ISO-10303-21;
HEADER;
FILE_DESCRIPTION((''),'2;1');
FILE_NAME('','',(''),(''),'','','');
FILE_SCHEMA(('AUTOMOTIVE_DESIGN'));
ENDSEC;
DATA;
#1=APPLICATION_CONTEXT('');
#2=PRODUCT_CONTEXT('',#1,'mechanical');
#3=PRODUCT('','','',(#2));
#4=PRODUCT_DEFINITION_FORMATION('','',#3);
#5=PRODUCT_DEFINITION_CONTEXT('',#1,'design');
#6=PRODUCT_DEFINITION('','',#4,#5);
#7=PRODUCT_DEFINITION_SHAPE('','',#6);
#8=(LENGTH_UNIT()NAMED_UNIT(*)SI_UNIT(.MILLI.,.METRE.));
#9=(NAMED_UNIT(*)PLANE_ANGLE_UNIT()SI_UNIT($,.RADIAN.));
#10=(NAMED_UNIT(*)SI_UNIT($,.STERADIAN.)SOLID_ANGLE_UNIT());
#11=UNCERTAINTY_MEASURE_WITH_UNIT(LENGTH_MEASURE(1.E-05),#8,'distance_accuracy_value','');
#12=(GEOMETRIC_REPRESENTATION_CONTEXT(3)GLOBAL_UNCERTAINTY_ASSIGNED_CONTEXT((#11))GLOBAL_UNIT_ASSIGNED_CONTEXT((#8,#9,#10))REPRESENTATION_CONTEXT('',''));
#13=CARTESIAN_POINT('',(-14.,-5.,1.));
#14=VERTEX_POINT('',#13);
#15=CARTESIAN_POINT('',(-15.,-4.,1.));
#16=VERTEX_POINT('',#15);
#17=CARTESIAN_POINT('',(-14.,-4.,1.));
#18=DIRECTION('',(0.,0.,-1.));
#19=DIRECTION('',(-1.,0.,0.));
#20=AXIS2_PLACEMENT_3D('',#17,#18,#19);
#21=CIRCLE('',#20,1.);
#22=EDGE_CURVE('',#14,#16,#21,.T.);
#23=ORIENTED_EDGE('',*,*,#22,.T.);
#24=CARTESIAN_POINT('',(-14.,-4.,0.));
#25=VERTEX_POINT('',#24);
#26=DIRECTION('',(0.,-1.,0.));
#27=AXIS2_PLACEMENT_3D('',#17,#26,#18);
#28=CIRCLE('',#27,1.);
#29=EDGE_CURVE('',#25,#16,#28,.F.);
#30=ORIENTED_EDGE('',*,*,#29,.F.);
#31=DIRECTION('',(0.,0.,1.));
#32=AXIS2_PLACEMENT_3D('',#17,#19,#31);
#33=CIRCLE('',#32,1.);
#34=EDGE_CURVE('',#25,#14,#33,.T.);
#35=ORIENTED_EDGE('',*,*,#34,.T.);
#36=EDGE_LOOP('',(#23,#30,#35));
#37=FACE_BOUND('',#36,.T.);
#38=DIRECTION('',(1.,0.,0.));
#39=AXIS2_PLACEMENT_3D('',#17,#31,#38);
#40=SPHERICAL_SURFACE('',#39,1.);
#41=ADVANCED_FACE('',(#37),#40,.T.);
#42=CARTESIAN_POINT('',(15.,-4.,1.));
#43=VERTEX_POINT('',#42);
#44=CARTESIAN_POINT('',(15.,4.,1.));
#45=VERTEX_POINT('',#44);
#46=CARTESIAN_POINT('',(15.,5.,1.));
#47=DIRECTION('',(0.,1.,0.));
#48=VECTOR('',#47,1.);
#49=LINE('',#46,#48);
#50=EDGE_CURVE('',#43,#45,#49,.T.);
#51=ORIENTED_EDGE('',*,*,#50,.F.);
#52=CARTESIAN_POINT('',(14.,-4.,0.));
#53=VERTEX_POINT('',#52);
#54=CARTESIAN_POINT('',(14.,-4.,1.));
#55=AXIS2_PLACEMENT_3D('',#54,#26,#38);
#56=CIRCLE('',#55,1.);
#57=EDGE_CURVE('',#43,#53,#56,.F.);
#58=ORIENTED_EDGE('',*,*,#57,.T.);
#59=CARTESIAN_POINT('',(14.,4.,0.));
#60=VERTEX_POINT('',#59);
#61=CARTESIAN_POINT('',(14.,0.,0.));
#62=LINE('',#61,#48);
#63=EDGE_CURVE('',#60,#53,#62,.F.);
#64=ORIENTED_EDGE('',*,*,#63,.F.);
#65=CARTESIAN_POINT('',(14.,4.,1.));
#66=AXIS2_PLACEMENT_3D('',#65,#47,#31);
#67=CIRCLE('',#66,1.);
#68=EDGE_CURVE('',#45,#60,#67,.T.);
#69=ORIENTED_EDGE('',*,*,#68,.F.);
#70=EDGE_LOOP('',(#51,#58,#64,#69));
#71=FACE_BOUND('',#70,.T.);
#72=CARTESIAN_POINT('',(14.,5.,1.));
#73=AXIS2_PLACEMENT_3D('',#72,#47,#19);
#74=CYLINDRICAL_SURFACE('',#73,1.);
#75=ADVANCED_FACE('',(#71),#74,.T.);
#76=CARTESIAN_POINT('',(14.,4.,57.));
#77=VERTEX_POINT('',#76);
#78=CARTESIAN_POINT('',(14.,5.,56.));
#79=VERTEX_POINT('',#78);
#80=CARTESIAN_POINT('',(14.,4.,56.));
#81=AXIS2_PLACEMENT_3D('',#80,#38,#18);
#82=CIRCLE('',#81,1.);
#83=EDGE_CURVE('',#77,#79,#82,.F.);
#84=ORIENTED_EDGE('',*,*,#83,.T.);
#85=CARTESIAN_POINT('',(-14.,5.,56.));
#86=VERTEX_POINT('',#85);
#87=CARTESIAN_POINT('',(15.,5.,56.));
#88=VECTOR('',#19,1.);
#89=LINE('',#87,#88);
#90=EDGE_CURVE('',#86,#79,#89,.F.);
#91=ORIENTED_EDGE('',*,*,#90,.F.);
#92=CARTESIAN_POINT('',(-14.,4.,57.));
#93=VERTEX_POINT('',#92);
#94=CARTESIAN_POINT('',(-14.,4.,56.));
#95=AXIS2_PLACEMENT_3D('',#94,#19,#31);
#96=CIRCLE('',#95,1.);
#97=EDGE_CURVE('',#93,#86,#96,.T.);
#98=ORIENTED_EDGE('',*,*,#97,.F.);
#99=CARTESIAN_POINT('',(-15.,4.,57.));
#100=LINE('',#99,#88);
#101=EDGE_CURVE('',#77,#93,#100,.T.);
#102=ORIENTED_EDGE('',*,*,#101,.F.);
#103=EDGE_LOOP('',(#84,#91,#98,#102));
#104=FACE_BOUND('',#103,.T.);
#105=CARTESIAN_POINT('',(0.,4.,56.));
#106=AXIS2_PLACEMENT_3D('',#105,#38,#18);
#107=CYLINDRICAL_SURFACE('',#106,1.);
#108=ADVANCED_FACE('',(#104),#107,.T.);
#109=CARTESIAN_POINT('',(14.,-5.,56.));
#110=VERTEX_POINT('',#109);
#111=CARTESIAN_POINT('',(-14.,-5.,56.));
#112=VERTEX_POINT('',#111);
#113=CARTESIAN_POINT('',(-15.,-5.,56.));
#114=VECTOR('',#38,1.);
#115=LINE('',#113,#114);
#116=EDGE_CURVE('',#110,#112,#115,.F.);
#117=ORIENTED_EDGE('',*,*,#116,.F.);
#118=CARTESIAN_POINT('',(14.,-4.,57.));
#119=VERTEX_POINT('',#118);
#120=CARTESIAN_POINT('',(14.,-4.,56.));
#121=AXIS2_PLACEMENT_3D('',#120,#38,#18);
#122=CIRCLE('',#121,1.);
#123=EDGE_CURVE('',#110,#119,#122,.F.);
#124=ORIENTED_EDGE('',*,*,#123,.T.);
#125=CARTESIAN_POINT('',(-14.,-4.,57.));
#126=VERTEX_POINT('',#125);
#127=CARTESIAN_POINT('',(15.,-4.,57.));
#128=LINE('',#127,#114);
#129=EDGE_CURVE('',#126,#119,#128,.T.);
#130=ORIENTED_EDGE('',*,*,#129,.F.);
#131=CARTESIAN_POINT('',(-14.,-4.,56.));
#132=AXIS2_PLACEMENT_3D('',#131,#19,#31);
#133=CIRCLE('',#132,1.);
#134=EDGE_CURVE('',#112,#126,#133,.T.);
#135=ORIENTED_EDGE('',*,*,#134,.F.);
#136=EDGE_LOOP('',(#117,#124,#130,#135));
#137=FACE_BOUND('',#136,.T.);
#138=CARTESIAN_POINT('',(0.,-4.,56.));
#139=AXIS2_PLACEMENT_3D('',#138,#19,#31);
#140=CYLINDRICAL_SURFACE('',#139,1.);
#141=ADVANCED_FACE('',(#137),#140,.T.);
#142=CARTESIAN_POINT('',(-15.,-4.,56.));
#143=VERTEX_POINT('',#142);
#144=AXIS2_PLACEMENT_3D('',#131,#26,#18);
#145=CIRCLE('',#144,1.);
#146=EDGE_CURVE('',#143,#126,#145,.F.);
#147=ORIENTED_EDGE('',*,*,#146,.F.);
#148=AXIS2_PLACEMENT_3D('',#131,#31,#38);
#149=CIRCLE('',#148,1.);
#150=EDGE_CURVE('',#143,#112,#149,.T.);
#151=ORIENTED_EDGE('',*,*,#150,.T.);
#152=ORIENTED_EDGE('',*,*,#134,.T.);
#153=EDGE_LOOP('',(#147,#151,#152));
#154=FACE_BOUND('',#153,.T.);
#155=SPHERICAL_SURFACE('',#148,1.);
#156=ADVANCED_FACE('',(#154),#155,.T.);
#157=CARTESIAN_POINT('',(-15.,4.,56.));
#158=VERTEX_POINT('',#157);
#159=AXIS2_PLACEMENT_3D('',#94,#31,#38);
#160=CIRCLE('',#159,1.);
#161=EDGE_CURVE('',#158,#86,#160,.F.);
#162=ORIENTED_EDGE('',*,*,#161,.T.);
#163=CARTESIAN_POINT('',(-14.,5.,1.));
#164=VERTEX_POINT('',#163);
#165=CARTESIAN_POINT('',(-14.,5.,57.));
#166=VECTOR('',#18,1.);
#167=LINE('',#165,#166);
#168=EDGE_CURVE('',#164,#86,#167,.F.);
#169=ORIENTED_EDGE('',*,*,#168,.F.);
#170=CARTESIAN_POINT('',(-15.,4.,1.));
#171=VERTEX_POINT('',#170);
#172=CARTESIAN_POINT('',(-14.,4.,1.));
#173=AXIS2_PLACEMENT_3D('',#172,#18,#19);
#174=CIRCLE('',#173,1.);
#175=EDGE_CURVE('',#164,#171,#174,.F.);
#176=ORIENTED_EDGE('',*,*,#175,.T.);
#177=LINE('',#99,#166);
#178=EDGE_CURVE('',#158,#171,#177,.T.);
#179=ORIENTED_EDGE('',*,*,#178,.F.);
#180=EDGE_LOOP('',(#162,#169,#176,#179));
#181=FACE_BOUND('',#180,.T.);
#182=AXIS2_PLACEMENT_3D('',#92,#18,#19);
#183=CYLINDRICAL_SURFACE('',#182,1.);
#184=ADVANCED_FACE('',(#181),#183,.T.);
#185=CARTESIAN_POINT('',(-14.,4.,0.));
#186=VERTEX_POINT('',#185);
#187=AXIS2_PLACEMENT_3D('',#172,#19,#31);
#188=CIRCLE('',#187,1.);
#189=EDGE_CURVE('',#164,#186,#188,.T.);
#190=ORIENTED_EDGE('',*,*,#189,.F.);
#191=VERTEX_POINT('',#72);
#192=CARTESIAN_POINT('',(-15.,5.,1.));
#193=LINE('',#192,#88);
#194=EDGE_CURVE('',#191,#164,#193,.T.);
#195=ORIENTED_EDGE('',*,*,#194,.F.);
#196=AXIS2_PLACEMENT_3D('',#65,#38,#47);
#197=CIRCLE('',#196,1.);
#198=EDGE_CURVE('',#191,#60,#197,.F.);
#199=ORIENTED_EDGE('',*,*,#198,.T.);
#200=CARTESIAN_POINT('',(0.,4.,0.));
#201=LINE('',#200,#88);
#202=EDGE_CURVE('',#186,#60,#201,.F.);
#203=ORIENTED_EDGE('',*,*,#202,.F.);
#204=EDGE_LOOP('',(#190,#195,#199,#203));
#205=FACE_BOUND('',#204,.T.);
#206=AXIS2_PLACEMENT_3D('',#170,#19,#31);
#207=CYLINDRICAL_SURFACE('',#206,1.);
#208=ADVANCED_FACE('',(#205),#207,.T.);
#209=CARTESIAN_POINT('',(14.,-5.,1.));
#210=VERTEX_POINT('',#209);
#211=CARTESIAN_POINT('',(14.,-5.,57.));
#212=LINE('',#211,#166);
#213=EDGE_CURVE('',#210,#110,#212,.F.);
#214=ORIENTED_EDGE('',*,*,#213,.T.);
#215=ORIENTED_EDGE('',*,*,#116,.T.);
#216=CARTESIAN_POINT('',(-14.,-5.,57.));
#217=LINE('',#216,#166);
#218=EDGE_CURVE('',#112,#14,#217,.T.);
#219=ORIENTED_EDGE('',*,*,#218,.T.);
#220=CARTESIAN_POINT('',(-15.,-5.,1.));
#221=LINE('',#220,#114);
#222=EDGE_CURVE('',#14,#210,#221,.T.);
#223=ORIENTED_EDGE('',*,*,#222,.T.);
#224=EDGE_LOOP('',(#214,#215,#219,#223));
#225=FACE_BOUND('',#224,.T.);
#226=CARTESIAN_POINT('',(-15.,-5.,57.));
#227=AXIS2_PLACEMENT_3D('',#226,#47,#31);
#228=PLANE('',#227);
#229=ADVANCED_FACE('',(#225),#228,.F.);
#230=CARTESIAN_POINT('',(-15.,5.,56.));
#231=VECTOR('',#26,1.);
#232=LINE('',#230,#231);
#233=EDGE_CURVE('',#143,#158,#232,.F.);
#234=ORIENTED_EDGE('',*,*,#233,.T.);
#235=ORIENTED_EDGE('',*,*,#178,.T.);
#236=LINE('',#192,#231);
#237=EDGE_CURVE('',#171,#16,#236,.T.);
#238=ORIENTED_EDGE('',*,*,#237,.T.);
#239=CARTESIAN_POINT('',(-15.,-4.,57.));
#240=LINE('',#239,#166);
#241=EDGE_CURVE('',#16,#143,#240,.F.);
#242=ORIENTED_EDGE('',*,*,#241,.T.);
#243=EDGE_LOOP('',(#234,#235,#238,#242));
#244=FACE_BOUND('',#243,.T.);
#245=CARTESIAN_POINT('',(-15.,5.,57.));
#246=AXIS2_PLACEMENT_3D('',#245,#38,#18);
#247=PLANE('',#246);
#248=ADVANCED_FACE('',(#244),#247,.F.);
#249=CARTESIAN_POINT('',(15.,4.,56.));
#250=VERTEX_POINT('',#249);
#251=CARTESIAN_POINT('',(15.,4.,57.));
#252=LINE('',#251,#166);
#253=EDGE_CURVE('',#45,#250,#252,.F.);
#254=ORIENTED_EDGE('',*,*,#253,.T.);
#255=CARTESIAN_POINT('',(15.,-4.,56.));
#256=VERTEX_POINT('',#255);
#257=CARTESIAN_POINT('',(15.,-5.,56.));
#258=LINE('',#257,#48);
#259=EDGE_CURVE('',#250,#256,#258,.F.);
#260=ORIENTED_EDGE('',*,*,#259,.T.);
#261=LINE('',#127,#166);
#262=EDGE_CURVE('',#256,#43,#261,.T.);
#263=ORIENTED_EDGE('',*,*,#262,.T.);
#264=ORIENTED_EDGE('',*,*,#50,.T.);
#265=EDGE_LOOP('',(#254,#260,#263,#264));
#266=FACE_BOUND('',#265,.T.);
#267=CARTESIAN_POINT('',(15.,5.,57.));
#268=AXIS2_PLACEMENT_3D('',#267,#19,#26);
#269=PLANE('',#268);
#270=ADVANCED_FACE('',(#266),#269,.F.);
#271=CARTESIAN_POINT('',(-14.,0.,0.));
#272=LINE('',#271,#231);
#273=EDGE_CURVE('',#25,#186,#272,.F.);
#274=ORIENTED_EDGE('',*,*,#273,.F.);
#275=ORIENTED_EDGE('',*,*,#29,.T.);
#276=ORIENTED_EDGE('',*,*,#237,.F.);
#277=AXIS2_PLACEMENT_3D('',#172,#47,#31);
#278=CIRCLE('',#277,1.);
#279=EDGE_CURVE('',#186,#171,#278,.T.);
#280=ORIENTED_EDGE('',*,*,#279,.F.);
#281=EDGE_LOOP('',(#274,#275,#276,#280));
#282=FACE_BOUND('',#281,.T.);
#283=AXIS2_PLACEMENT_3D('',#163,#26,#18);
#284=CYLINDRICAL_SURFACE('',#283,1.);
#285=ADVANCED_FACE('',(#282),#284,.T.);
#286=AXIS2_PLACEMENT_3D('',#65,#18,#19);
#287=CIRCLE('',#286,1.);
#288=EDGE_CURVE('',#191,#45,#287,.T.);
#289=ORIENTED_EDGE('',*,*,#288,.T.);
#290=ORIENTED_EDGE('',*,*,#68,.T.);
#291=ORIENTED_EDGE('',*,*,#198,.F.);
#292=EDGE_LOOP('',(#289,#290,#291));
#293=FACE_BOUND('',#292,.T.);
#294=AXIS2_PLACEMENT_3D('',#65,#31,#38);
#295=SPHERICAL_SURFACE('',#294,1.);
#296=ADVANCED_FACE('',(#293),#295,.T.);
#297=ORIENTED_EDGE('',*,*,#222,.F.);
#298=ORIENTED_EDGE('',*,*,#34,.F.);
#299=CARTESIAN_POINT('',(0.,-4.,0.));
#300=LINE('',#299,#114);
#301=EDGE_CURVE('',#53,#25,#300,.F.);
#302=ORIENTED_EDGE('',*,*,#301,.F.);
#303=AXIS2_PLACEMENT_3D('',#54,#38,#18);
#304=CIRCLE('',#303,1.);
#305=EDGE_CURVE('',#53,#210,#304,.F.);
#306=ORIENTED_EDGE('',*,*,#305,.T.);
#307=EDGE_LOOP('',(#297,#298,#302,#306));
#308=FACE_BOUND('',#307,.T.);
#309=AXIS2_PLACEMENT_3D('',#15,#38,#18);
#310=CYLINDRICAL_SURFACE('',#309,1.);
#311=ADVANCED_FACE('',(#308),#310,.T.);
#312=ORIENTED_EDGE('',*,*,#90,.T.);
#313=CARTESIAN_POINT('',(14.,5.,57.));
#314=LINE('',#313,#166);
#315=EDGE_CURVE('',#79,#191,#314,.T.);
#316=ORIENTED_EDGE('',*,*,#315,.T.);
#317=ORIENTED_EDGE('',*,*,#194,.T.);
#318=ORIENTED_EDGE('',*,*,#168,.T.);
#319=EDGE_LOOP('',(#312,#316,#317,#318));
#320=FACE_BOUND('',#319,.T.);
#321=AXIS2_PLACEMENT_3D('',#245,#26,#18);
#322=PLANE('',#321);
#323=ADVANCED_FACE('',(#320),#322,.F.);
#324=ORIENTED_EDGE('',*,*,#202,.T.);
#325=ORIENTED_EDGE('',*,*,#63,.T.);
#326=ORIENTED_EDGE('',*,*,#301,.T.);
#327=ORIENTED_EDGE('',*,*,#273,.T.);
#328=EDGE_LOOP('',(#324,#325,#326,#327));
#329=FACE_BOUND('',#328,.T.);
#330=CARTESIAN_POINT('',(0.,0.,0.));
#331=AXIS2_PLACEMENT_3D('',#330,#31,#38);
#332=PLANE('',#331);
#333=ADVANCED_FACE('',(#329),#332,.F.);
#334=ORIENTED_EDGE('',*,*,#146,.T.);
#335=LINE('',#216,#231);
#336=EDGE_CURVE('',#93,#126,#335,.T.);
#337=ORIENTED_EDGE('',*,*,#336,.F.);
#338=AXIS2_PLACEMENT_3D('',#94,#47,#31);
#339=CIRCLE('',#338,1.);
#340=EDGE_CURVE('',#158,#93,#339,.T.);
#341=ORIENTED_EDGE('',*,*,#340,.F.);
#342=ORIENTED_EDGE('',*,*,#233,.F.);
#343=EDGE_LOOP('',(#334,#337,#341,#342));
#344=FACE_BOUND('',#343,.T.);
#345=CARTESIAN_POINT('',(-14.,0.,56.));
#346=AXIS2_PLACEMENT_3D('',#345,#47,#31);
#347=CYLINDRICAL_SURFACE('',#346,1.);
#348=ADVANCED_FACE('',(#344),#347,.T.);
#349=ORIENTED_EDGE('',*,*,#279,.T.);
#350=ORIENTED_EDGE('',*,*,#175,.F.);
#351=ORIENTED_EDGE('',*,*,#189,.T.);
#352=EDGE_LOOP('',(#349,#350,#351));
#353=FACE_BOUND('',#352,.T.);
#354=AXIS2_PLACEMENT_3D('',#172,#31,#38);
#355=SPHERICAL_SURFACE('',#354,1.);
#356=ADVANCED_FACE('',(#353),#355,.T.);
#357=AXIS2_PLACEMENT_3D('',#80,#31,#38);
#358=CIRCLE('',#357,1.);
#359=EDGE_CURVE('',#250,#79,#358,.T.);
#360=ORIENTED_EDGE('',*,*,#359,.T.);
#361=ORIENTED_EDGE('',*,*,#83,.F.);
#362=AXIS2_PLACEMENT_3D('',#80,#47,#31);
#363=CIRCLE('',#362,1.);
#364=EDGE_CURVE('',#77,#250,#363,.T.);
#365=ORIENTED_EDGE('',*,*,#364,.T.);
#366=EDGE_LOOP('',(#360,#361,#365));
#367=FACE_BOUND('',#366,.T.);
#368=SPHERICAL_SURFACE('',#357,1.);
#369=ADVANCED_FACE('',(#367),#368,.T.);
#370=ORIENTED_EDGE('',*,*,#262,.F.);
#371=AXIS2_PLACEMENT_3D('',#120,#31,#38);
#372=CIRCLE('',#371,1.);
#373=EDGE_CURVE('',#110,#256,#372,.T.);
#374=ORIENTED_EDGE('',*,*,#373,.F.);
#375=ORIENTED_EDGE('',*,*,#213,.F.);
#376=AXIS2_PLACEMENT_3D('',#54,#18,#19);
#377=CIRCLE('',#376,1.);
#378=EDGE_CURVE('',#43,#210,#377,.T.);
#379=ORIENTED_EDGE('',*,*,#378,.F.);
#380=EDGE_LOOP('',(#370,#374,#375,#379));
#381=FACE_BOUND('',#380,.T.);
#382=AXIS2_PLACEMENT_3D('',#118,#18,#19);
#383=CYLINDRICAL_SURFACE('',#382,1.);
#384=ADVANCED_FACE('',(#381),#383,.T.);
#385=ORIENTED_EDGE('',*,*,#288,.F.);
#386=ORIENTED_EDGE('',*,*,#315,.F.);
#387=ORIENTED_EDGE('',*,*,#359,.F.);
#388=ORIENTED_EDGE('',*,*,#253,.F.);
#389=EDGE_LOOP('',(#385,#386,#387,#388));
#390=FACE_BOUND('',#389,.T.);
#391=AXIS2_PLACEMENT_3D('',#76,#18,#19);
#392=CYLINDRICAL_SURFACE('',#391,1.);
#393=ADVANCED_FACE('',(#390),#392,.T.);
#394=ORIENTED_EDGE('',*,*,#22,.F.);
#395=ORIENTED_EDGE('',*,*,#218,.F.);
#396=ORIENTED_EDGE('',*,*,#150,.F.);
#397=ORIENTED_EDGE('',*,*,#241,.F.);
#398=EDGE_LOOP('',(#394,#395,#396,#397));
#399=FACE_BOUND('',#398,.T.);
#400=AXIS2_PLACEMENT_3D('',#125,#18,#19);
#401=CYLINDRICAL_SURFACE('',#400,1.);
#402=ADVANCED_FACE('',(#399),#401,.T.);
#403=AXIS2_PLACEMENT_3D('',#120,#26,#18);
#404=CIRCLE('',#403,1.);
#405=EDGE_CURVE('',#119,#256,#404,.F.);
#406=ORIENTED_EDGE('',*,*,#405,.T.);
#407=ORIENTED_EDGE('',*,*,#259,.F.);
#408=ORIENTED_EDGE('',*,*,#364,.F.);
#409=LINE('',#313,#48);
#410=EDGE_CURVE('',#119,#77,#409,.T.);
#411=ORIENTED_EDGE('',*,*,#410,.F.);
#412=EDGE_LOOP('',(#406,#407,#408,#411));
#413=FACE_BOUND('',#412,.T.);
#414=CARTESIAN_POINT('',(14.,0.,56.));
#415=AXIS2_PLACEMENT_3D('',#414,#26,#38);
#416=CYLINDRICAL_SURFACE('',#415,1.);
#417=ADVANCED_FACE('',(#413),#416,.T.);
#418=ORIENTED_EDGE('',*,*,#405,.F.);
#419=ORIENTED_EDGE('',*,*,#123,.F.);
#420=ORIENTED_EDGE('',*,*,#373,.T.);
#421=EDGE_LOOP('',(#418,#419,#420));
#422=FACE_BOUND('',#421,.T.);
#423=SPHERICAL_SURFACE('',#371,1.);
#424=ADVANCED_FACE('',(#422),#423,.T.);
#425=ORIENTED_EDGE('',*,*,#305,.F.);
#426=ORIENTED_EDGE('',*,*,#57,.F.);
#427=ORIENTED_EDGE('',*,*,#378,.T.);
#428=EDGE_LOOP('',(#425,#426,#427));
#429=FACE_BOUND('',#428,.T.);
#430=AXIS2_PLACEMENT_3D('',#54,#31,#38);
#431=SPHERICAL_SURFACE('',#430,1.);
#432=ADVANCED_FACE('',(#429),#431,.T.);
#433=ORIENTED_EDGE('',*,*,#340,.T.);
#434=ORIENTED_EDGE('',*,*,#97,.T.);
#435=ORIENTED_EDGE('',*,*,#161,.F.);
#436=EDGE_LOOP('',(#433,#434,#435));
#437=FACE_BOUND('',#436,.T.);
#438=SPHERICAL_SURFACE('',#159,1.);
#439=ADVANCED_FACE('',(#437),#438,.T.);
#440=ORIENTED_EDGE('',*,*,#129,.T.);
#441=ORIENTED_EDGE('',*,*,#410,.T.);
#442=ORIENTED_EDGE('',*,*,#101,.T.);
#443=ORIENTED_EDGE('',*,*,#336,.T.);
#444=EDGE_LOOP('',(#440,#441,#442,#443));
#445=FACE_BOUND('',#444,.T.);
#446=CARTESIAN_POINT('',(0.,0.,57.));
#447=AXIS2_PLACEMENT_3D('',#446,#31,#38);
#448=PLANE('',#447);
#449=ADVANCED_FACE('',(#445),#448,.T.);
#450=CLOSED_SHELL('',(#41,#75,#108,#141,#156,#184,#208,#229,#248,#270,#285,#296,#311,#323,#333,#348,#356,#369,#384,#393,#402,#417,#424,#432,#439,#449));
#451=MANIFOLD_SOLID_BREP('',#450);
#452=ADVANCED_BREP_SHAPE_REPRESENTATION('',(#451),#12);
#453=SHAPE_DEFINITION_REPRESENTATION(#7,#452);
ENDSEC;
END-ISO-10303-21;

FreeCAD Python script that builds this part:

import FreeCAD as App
import Part
import Sketcher


def add_polygon(sketch, points):
    """Adds a closed chain of lines whose ends are joined by coincident constraints."""
    first, n = sketch.GeometryCount, len(points)
    for a, b in zip(points, points[1:] + points[:1]):
        sketch.addGeometry(Part.LineSegment(App.Vector(*a, 0), App.Vector(*b, 0)), False)
    for i in range(n):
        sketch.addConstraint(Sketcher.Constraint("Coincident", first + i, 2, first + (i + 1) % n, 1))

doc = App.newDocument("Part")
body = doc.addObject("PartDesign::Body", "Body")

sketch1 = body.newObject("Sketcher::SketchObject", "Sketch")
sketch1.AttachmentSupport = (doc.getObject("XY_Plane"), [""])
sketch1.MapMode = "FlatFace"
add_polygon(sketch1, [(-15, 5), (-15, -5), (15, -5), (15, 5)])
sketch1.addConstraint([
    Sketcher.Constraint("Vertical", 0),
    Sketcher.Constraint("Horizontal", 1),
    Sketcher.Constraint("Vertical", 2),
    Sketcher.Constraint("Horizontal", 3),
    Sketcher.Constraint("Symmetric", 0, 2, 2, 2, -1, 1),
    Sketcher.Constraint("DistanceX", 1, 1, 1, 2, 30.0),
    Sketcher.Constraint("DistanceY", 0, 2, 0, 1, 10.0),
])
pad1 = body.newObject("PartDesign::Pad", "Pad")
pad1.Profile = sketch1
pad1.Length = 57
doc.recompute()

fillet = body.newObject("PartDesign::Fillet", "Fillet")
fillet.Base = (pad1, ["Edge1"])
fillet.UseAllEdges = True
fillet.Radius = 1

doc.recompute()
